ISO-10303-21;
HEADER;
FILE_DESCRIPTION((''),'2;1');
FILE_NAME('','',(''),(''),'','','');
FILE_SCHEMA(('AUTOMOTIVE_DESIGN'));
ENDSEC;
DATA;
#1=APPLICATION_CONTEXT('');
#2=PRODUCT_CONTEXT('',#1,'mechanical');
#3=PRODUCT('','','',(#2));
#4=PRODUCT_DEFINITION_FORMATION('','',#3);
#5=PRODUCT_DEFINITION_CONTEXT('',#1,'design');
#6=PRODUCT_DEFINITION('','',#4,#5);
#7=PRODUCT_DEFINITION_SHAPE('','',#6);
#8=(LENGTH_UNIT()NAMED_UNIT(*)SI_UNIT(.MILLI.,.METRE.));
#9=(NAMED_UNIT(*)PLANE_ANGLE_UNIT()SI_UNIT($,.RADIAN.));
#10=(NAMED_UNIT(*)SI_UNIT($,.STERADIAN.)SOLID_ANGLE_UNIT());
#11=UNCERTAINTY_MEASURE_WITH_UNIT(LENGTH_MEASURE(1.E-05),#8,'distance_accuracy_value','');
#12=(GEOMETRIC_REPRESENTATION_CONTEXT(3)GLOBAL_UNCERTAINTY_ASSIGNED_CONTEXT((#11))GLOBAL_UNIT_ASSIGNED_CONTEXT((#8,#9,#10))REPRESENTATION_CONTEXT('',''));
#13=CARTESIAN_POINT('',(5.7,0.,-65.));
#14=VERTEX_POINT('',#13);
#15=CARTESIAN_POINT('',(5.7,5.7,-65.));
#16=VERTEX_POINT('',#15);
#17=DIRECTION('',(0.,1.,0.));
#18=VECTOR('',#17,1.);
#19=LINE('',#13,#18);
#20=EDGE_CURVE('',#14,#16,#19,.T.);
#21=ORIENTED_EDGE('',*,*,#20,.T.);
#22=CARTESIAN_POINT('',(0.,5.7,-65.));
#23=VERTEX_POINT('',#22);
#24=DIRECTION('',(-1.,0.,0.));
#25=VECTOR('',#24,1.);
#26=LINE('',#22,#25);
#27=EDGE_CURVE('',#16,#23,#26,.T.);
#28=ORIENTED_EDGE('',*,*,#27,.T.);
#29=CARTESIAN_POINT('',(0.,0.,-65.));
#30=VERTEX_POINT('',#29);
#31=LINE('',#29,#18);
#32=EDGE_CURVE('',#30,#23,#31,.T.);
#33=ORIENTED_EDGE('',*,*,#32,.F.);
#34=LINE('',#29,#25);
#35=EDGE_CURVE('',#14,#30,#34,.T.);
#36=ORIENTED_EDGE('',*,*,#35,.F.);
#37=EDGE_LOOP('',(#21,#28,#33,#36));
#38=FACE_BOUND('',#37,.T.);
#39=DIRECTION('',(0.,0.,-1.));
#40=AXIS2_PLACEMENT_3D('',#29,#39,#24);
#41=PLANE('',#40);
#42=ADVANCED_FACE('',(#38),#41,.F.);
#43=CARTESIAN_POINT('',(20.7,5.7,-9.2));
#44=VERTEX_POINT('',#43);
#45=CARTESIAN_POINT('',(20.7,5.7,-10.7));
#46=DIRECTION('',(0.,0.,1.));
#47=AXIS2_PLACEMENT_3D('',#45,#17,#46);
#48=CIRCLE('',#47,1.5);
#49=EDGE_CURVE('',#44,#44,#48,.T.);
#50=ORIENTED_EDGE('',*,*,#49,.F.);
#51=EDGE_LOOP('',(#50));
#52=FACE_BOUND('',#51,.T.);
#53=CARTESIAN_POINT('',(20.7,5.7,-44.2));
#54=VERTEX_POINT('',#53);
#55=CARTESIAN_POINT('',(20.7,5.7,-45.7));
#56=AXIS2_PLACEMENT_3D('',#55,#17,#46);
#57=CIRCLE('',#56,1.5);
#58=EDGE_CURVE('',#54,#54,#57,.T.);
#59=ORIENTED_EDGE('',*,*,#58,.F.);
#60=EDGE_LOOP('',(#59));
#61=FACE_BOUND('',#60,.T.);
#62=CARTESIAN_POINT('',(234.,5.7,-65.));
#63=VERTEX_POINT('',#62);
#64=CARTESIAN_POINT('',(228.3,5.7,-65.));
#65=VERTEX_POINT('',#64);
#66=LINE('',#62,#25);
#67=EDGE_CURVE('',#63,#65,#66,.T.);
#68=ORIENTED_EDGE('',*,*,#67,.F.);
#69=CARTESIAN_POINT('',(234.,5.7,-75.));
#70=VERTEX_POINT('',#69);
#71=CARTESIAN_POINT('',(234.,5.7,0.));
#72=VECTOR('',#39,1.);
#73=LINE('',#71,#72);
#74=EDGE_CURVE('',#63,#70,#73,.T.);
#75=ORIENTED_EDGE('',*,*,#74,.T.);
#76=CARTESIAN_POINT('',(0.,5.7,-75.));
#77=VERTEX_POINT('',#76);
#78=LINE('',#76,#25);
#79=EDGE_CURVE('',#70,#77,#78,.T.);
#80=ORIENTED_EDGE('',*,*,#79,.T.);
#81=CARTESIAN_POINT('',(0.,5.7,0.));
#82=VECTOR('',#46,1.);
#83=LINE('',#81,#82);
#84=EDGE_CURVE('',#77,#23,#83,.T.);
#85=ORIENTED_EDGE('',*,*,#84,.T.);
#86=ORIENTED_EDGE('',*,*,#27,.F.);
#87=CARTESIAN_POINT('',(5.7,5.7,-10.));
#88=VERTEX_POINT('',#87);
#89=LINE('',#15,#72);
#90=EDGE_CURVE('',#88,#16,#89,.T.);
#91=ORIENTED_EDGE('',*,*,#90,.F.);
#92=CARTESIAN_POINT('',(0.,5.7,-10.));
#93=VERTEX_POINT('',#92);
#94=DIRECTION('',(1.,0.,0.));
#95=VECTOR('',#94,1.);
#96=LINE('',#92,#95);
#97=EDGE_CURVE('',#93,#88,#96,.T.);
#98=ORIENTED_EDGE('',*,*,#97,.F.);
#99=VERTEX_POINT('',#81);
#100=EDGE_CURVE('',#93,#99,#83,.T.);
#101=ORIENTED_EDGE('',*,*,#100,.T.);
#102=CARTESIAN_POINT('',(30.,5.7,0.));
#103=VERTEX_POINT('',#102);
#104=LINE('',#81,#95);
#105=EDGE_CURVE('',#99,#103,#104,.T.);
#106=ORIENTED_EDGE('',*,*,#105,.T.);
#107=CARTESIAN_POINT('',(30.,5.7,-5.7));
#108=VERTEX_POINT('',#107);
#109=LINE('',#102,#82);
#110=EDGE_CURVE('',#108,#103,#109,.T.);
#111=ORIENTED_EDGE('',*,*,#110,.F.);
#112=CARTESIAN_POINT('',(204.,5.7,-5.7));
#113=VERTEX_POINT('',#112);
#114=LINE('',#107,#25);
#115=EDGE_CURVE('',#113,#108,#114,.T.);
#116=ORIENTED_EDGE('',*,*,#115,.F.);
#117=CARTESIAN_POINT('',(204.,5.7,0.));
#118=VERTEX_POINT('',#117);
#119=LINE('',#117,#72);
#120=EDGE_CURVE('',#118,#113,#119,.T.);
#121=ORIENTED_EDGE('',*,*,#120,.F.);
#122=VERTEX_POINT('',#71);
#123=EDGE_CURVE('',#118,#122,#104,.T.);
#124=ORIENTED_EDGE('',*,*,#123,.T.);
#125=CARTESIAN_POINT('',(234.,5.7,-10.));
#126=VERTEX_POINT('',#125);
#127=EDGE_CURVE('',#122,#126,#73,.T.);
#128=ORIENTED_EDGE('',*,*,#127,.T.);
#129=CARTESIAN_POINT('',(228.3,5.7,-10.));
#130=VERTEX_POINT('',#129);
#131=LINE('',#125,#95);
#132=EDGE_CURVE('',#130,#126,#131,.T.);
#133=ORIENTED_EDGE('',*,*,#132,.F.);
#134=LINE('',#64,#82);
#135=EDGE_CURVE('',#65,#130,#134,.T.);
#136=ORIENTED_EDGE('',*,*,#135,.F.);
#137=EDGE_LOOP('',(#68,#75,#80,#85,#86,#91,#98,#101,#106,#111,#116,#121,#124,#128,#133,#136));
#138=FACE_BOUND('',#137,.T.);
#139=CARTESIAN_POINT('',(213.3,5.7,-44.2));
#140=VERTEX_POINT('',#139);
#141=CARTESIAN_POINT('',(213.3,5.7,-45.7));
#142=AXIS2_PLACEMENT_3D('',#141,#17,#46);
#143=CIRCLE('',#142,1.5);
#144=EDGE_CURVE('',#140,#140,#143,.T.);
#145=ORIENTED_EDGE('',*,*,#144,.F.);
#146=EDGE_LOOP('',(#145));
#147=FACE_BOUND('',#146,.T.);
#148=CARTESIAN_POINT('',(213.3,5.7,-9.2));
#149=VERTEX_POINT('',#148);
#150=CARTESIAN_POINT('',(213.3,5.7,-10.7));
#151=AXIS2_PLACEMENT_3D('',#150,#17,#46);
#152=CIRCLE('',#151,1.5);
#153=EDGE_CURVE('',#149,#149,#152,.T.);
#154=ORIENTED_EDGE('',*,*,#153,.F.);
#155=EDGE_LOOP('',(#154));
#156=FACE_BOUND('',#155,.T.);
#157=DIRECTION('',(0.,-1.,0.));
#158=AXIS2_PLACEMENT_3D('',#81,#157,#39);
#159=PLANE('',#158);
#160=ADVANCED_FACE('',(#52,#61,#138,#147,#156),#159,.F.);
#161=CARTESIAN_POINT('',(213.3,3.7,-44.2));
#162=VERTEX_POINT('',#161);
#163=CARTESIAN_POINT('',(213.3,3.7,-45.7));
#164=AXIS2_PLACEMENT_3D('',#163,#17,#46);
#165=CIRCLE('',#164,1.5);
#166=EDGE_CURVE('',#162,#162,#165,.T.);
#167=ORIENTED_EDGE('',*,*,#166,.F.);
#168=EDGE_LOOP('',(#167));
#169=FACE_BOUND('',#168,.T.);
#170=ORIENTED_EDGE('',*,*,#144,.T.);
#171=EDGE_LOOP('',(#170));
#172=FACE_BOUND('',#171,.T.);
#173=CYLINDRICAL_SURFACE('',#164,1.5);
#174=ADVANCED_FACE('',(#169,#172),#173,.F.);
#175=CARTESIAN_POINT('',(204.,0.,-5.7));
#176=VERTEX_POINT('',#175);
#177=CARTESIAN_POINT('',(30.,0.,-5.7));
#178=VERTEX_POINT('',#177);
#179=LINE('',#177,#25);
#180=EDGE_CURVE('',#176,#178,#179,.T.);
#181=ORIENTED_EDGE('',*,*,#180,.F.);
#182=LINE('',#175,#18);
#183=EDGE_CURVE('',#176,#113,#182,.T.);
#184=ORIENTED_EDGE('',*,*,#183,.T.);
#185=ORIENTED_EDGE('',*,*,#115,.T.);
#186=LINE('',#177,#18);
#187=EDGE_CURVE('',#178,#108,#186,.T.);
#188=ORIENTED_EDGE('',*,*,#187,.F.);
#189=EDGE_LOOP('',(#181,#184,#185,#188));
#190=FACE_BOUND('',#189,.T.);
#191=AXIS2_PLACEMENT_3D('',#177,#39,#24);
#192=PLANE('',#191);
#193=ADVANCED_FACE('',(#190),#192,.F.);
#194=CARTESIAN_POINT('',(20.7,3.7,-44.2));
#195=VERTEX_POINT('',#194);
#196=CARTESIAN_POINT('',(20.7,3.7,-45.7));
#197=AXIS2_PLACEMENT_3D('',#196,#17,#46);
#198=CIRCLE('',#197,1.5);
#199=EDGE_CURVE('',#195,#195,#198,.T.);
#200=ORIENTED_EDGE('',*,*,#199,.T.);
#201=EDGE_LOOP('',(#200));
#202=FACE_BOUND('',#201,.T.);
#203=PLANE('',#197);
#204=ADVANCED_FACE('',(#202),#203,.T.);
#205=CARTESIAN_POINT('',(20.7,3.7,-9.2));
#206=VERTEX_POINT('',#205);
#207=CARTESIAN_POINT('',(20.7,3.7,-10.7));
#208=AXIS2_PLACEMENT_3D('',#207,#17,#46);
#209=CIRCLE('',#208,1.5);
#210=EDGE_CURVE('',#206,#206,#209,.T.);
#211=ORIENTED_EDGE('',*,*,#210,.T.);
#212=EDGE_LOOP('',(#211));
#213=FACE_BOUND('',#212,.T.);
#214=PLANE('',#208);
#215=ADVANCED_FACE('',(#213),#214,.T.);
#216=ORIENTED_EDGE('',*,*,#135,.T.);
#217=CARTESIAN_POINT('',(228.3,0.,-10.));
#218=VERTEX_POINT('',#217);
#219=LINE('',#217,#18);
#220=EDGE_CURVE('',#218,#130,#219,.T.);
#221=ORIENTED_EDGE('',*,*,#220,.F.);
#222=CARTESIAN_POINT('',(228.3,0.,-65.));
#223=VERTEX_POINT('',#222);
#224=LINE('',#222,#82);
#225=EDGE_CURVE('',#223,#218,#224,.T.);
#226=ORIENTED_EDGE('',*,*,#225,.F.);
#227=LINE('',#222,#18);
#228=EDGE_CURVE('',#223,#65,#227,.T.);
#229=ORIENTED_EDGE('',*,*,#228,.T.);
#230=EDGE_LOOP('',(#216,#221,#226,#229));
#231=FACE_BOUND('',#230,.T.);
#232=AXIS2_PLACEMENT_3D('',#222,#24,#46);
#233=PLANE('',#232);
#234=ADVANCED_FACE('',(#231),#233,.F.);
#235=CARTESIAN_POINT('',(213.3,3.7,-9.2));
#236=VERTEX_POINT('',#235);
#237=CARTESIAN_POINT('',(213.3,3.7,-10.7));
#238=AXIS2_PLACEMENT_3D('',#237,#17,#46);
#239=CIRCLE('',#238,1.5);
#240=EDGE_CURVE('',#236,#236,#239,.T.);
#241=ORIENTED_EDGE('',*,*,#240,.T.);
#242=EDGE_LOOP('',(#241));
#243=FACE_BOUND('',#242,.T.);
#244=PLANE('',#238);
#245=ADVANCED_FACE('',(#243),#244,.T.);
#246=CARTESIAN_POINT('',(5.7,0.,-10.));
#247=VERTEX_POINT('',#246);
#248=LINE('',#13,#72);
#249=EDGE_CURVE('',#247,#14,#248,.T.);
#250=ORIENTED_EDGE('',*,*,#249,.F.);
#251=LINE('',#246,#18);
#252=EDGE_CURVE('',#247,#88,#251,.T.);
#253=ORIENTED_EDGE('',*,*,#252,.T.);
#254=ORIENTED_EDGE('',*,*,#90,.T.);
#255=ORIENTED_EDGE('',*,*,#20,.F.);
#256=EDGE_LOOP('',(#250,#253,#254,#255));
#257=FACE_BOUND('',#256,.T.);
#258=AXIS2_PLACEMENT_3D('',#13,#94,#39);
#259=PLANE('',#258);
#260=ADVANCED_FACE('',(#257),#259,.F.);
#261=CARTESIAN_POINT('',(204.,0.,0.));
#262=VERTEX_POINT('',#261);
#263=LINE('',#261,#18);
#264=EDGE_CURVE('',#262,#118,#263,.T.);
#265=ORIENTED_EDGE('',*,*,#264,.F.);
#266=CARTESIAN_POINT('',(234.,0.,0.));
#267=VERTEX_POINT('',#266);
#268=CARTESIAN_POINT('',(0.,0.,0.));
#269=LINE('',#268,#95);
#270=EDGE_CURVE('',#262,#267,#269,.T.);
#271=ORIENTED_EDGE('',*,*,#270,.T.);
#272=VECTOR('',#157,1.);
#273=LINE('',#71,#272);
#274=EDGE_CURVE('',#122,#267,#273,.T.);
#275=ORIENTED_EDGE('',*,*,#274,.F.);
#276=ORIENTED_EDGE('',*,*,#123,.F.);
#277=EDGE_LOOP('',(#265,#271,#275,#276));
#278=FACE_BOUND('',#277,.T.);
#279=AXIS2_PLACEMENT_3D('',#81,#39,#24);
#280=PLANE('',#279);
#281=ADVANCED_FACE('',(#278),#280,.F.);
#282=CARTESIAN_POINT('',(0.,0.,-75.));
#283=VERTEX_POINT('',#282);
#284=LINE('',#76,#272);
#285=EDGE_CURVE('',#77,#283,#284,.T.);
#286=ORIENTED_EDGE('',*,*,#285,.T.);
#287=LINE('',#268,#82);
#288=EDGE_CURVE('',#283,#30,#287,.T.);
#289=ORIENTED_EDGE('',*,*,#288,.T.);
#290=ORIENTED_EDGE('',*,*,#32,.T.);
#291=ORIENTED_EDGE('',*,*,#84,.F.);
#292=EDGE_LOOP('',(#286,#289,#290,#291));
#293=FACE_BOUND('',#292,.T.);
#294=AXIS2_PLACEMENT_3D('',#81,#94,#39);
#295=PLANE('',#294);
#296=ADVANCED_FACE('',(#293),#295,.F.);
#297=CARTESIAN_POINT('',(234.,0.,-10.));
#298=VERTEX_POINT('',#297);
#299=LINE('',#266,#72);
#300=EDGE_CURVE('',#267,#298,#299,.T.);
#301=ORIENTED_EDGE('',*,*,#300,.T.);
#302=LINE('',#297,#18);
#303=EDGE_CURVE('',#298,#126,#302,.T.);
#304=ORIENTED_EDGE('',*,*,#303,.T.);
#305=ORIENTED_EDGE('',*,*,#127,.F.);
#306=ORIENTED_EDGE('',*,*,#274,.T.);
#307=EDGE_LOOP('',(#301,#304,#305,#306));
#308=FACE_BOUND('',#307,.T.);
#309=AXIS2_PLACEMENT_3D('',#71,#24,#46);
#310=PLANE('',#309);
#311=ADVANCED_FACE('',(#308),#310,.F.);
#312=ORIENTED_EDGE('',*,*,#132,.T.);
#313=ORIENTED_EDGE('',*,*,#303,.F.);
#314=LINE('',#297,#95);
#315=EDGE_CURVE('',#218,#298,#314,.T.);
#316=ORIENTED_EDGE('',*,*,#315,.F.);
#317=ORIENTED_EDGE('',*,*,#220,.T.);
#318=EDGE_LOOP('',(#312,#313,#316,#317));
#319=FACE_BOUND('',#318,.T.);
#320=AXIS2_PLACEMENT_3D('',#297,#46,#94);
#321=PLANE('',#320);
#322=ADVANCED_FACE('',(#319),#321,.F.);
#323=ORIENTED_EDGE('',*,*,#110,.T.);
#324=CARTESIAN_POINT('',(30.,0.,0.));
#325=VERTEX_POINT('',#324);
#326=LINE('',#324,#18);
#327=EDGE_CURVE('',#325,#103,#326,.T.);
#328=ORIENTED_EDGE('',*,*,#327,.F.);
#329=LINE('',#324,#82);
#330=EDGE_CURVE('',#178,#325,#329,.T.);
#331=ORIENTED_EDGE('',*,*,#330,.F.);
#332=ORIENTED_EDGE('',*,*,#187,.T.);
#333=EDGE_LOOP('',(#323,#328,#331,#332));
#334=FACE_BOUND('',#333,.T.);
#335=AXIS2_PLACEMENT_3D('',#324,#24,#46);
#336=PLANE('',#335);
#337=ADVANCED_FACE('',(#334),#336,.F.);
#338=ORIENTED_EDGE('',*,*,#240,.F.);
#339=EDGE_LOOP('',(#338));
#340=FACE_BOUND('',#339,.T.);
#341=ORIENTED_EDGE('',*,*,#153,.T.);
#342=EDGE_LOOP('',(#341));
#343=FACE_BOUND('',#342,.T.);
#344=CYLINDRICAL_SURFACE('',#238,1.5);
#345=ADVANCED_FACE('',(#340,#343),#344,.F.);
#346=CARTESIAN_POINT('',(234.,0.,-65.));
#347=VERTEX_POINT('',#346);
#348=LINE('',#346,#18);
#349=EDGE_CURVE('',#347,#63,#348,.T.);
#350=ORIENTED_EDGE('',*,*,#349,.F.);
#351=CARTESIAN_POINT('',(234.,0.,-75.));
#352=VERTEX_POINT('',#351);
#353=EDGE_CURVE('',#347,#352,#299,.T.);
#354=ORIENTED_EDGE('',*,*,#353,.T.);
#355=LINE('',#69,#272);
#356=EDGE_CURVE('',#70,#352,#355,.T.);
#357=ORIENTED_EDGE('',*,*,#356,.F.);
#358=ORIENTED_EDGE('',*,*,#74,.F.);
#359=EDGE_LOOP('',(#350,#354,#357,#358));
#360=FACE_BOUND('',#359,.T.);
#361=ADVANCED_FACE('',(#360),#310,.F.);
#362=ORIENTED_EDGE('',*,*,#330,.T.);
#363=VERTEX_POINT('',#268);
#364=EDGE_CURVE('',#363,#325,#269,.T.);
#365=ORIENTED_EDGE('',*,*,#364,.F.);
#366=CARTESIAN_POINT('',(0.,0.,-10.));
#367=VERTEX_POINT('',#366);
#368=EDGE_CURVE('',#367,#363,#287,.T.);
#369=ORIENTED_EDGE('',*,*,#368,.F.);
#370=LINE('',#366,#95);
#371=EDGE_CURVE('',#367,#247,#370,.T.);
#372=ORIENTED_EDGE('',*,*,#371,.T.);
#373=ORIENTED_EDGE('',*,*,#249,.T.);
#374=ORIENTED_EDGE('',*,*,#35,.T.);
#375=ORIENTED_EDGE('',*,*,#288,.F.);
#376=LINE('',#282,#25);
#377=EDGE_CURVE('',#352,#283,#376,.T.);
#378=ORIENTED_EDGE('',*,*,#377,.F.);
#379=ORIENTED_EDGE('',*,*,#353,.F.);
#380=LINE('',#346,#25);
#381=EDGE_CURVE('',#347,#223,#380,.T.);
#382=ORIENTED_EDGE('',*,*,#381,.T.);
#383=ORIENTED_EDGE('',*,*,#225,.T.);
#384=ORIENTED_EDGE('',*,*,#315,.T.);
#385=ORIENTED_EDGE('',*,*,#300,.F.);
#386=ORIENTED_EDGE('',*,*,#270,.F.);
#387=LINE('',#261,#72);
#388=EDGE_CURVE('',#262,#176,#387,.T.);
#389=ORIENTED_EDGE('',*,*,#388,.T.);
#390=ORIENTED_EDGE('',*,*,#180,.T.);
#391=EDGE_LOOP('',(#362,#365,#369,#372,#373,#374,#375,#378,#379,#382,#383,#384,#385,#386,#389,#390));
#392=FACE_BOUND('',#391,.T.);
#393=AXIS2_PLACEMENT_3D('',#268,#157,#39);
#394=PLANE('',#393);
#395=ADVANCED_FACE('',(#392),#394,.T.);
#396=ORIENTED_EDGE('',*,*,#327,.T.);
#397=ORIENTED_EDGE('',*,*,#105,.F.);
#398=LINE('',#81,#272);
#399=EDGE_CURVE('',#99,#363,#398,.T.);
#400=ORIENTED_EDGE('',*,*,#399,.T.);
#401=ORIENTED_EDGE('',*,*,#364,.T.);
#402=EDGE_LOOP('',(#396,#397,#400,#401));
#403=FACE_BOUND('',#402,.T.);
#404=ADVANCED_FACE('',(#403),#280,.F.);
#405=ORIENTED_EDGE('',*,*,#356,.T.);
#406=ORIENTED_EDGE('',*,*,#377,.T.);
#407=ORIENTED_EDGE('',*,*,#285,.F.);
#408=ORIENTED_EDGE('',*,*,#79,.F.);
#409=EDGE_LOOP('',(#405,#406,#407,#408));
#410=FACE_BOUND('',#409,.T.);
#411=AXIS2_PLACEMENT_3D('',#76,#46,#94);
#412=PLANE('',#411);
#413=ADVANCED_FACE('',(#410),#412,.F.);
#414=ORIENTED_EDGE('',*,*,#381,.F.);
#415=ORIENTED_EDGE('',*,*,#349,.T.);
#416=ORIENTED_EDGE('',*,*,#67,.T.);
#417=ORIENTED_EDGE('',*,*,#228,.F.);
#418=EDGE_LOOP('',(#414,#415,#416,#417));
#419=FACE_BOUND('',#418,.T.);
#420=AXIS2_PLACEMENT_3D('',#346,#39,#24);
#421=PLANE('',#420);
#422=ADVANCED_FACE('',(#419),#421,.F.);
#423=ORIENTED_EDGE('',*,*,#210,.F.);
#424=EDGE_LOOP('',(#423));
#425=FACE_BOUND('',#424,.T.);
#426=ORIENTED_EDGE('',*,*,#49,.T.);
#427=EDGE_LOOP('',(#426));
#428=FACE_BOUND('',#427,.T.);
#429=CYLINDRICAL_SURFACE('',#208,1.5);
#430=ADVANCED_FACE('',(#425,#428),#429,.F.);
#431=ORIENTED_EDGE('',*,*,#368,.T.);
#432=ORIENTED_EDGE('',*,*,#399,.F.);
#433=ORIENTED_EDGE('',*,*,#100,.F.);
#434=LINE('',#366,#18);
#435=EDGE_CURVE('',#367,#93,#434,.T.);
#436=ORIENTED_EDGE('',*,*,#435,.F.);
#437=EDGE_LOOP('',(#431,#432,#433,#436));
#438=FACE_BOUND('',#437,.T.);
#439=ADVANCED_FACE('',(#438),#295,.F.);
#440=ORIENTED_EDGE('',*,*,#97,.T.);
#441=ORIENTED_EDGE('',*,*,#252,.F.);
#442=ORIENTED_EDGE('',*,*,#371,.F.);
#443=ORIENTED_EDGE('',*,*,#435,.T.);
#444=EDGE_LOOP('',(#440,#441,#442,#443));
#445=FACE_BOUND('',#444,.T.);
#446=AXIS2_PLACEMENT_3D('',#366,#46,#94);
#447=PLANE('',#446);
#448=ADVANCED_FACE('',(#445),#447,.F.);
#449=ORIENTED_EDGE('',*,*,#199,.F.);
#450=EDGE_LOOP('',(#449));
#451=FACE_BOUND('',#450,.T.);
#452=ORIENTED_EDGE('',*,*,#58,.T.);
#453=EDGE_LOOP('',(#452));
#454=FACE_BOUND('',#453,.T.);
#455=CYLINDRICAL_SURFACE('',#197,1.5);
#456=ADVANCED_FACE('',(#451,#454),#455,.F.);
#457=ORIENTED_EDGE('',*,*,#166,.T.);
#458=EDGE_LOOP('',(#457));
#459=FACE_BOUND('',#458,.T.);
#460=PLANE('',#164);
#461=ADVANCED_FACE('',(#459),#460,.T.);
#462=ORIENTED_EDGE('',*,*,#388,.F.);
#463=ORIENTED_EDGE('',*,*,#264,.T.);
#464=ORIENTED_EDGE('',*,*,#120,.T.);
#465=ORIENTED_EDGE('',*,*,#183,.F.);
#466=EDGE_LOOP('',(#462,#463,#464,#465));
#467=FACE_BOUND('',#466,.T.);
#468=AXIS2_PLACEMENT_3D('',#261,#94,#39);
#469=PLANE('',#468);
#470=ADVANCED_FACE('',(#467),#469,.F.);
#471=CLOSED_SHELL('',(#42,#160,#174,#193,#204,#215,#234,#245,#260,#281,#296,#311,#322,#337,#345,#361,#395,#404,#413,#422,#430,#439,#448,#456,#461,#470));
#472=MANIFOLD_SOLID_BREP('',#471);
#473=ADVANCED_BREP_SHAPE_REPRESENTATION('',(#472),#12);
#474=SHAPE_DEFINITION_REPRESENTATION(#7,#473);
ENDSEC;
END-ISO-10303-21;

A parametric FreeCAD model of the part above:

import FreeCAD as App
import Part
import Sketcher
from FreeCAD import Vector


def add_polygon(sketch, points):
    """Adds a closed chain of lines whose ends are joined by coincident constraints."""
    first, n = sketch.GeometryCount, len(points)
    for a, b in zip(points, points[1:] + points[:1]):
        sketch.addGeometry(Part.LineSegment(App.Vector(*a, 0), App.Vector(*b, 0)), False)
    for i in range(n):
        sketch.addConstraint(Sketcher.Constraint("Coincident", first + i, 2, first + (i + 1) % n, 1))

doc = App.newDocument("Part")
body = doc.addObject("PartDesign::Body", "Body")

# Sketch on XZ plane
sketch1 = body.newObject("Sketcher::SketchObject", "Sketch")
sketch1.AttachmentSupport = (doc.getObject("XZ_Plane"), [""])
sketch1.MapMode = "FlatFace"
add_polygon(sketch1, [(0, -75), (0, 0), (234, 0), (234, -75)])  # lines 0-3
sketch1.addConstraint([
    Sketcher.Constraint("Vertical", 0),
    Sketcher.Constraint("Horizontal", 1),
    Sketcher.Constraint("Vertical", 2),
    Sketcher.Constraint("Horizontal", 3),
    Sketcher.Constraint("Coincident", 0, 2, -1, 1),
    Sketcher.Constraint("DistanceX", 1, 1, 1, 2, 234.0),
    Sketcher.Constraint("DistanceY", 0, 1, 0, 2, 75.0),
])
pad1 = body.newObject("PartDesign::Pad", "Pad")
pad1.Profile = sketch1
pad1.Length = 5.7
pad1.Reversed = True

# Sketch on XZ plane
sketch2 = body.newObject("Sketcher::SketchObject", "Sketch001")
sketch2.AttachmentSupport = (doc.getObject("XZ_Plane"), [""])
sketch2.MapMode = "FlatFace"
sketch2.AttachmentOffset = App.Placement(Vector(0, 0, -5.7), App.Rotation())
add_polygon(sketch2, [(0, -65), (0, -10), (6, -10), (6, -65)])  # lines 0-3
add_polygon(sketch2, [(228, -65), (228, -10), (234, -10), (234, -65)])  # lines 4-7
sketch2.addConstraint([
    Sketcher.Constraint("Vertical", 0),
    Sketcher.Constraint("Horizontal", 1),
    Sketcher.Constraint("Vertical", 2),
    Sketcher.Constraint("Horizontal", 3),
    Sketcher.Constraint("Vertical", 4),
    Sketcher.Constraint("Horizontal", 5),
    Sketcher.Constraint("Vertical", 6),
    Sketcher.Constraint("Horizontal", 7),
    Sketcher.Constraint("PointOnObject", 0, 2, -2),
    Sketcher.Constraint("Horizontal", 1, 2, 4, 2),
    Sketcher.Constraint("Horizontal", 3, 2, 6, 2),
    Sketcher.Constraint("Equal", 3, 5),
    Sketcher.Constraint("DistanceY", 0, 1, 0, 2, 55.0),
    Sketcher.Constraint("DistanceX", 1, 1, 1, 2, 5.7),
    Sketcher.Constraint("DistanceY", 0, 2, -1, 1, 10.0),
    Sketcher.Constraint("DistanceX", -1, 1, 5, 2, 234.0),
])
pocket1 = body.newObject("PartDesign::Pocket", "Pocket")
pocket1.Profile = sketch2
pocket1.Length = 5.7
pocket1.Reversed = True

# Sketch on XZ plane
sketch3 = body.newObject("Sketcher::SketchObject", "Sketch002")
sketch3.AttachmentSupport = (doc.getObject("XZ_Plane"), [""])
sketch3.MapMode = "FlatFace"
sketch3.AttachmentOffset = App.Placement(Vector(0, 0, -5.7), App.Rotation())
add_polygon(sketch3, [(30, -6), (30, 0), (204, 0), (204, -6)])  # lines 0-3
sketch3.addConstraint([
    Sketcher.Constraint("Vertical", 0),
    Sketcher.Constraint("Horizontal", 1),
    Sketcher.Constraint("Vertical", 2),
    Sketcher.Constraint("Horizontal", 3),
    Sketcher.Constraint("PointOnObject", 0, 2, -1),
    Sketcher.Constraint("DistanceX", 1, 1, 1, 2, 174.0),
    Sketcher.Constraint("DistanceY", 0, 1, 0, 2, 5.7),
    Sketcher.Constraint("DistanceX", -1, 1, 0, 2, 30.0),
])
pocket2 = body.newObject("PartDesign::Pocket", "Pocket001")
pocket2.Profile = sketch3
pocket2.Length = 5.7
pocket2.Reversed = True

# Sketch on XZ plane
sketch4 = body.newObject("Sketcher::SketchObject", "Sketch003")
sketch4.AttachmentSupport = (doc.getObject("XZ_Plane"), [""])
sketch4.MapMode = "FlatFace"
sketch4.AttachmentOffset = App.Placement(Vector(0, 0, -5.7), App.Rotation())
sketch4.addGeometry([
    Part.Circle(Vector(213.3, -45.7, 0), Vector(0, 0, 1), 1.5),
    Part.Circle(Vector(213.3, -10.7, 0), Vector(0, 0, 1), 1.5),
    Part.Circle(Vector(20.7, -10.7, 0), Vector(0, 0, 1), 1.5),
    Part.Circle(Vector(20.7, -45.7, 0), Vector(0, 0, 1), 1.5),
], False)
sketch4.addConstraint([
    Sketcher.Constraint("Equal", 0, 1),
    Sketcher.Constraint("Equal", 1, 2),
    Sketcher.Constraint("Equal", 2, 3),
    Sketcher.Constraint("Horizontal", 1, 3, 2, 3),
    Sketcher.Constraint("Horizontal", 0, 3, 3, 3),
    Sketcher.Constraint("Vertical", 0, 3, 1, 3),
    Sketcher.Constraint("Vertical", 2, 3, 3, 3),
    Sketcher.Constraint("Diameter", 0, 3.0),
    Sketcher.Constraint("DistanceY", 0, 3, 1, 3, 35.0),
    Sketcher.Constraint("DistanceX", -1, 1, 0, 3, 213.3),
    Sketcher.Constraint("DistanceY", 0, 3, -1, 1, 45.7),
    Sketcher.Constraint("DistanceX", -1, 1, 2, 3, 20.7),
])
pocket3 = body.newObject("PartDesign::Pocket", "Pocket002")
pocket3.Profile = sketch4
pocket3.Length = 2
pocket3.Reversed = True

doc.recompute()
